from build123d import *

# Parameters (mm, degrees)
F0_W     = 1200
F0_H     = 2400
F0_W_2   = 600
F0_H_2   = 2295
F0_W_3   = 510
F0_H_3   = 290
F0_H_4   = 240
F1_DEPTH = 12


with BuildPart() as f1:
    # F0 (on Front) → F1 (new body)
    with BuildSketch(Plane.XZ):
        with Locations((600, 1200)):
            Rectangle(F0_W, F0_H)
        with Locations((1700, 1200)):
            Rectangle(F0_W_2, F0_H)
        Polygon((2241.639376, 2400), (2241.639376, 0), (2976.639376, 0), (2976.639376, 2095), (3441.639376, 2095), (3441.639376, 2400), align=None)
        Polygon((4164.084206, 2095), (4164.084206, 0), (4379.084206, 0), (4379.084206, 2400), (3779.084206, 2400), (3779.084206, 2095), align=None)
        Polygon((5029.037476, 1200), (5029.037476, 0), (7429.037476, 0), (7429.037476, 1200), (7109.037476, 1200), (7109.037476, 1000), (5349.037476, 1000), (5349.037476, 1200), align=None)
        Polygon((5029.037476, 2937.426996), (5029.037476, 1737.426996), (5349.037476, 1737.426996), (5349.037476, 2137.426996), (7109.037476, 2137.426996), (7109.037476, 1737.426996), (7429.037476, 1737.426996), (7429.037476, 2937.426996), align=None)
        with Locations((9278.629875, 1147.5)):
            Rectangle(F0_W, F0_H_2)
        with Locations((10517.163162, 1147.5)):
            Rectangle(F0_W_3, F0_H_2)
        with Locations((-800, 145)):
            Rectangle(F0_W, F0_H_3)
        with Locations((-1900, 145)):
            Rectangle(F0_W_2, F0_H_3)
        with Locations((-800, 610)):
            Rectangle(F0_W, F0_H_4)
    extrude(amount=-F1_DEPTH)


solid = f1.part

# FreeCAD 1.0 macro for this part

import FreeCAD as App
import Part
import Sketcher
Q = App.Units.Quantity

doc = App.newDocument("Part")
body = doc.addObject("PartDesign::Body", "Body")
body.AllowCompound = True

# Sketch on XZ plane
sketch1 = body.newObject("Sketcher::SketchObject", "Sketch")
sketch1.AttachmentSupport = (doc.getObject("XZ_Plane"), [""])
sketch1.MapMode = "FlatFace"
sketch1.addGeometry(Part.LineSegment(App.Vector(0, 2400, 0), App.Vector(0, 0, 0)), False)
sketch1.addGeometry(Part.LineSegment(App.Vector(0, 0, 0), App.Vector(1200, 0, 0)), False)
sketch1.addGeometry(Part.LineSegment(App.Vector(1200, 0, 0), App.Vector(1200, 2400, 0)), False)
sketch1.addGeometry(Part.LineSegment(App.Vector(1200, 2400, 0), App.Vector(0, 2400, 0)), False)
sketch1.addGeometry(Part.LineSegment(App.Vector(1400, 2400, 0), App.Vector(1400, 0, 0)), False)
sketch1.addGeometry(Part.LineSegment(App.Vector(1400, 0, 0), App.Vector(2000, 0, 0)), False)
sketch1.addGeometry(Part.LineSegment(App.Vector(2000, 0, 0), App.Vector(2000, 2400, 0)), False)
sketch1.addGeometry(Part.LineSegment(App.Vector(2000, 2400, 0), App.Vector(1400, 2400, 0)), False)
sketch1.addGeometry(Part.LineSegment(App.Vector(2241.639376, 2400, 0), App.Vector(2241.639376, 0, 0)), False)
sketch1.addGeometry(Part.LineSegment(App.Vector(2241.639376, 0, 0), App.Vector(2976.639376, 0, 0)), False)
sketch1.addGeometry(Part.LineSegment(App.Vector(2976.639376, 0, 0), App.Vector(2976.639376, 2095, 0)), False)
sketch1.addGeometry(Part.LineSegment(App.Vector(2976.639376, 2095, 0), App.Vector(3441.639376, 2095, 0)), False)
sketch1.addGeometry(Part.LineSegment(App.Vector(3441.639376, 2095, 0), App.Vector(3441.639376, 2400, 0)), False)
sketch1.addGeometry(Part.LineSegment(App.Vector(3441.639376, 2400, 0), App.Vector(2241.639376, 2400, 0)), False)
sketch1.addGeometry(Part.LineSegment(App.Vector(4164.084206, 2095, 0), App.Vector(4164.084206, 0, 0)), False)
sketch1.addGeometry(Part.LineSegment(App.Vector(4164.084206, 0, 0), App.Vector(4379.084206, 0, 0)), False)
sketch1.addGeometry(Part.LineSegment(App.Vector(4379.084206, 0, 0), App.Vector(4379.084206, 2400, 0)), False)
sketch1.addGeometry(Part.LineSegment(App.Vector(4379.084206, 2400, 0), App.Vector(3779.084206, 2400, 0)), False)
sketch1.addGeometry(Part.LineSegment(App.Vector(3779.084206, 2400, 0), App.Vector(3779.084206, 2095, 0)), False)
sketch1.addGeometry(Part.LineSegment(App.Vector(3779.084206, 2095, 0), App.Vector(4164.084206, 2095, 0)), False)
sketch1.addGeometry(Part.LineSegment(App.Vector(5029.037476, 1200, 0), App.Vector(5029.037476, 0, 0)), False)
sketch1.addGeometry(Part.LineSegment(App.Vector(5029.037476, 0, 0), App.Vector(7429.037476, 0, 0)), False)
sketch1.addGeometry(Part.LineSegment(App.Vector(7429.037476, 0, 0), App.Vector(7429.037476, 1200, 0)), False)
sketch1.addGeometry(Part.LineSegment(App.Vector(7429.037476, 1200, 0), App.Vector(7109.037476, 1200, 0)), False)
sketch1.addGeometry(Part.LineSegment(App.Vector(7109.037476, 1200, 0), App.Vector(7109.037476, 1000, 0)), False)
sketch1.addGeometry(Part.LineSegment(App.Vector(7109.037476, 1000, 0), App.Vector(5349.037476, 1000, 0)), False)
sketch1.addGeometry(Part.LineSegment(App.Vector(5349.037476, 1000, 0), App.Vector(5349.037476, 1200, 0)), False)
sketch1.addGeometry(Part.LineSegment(App.Vector(5349.037476, 1200, 0), App.Vector(5029.037476, 1200, 0)), False)
sketch1.addGeometry(Part.LineSegment(App.Vector(5029.037476, 2937.426996, 0), App.Vector(5029.037476, 1737.426996, 0)), False)
sketch1.addGeometry(Part.LineSegment(App.Vector(5029.037476, 1737.426996, 0), App.Vector(5349.037476, 1737.426996, 0)), False)
sketch1.addGeometry(Part.LineSegment(App.Vector(5349.037476, 1737.426996, 0), App.Vector(5349.037476, 2137.426996, 0)), False)
sketch1.addGeometry(Part.LineSegment(App.Vector(5349.037476, 2137.426996, 0), App.Vector(7109.037476, 2137.426996, 0)), False)
sketch1.addGeometry(Part.LineSegment(App.Vector(7109.037476, 2137.426996, 0), App.Vector(7109.037476, 1737.426996, 0)), False)
sketch1.addGeometry(Part.LineSegment(App.Vector(7109.037476, 1737.426996, 0), App.Vector(7429.037476, 1737.426996, 0)), False)
sketch1.addGeometry(Part.LineSegment(App.Vector(7429.037476, 1737.426996, 0), App.Vector(7429.037476, 2937.426996, 0)), False)
sketch1.addGeometry(Part.LineSegment(App.Vector(7429.037476, 2937.426996, 0), App.Vector(5029.037476, 2937.426996, 0)), False)
sketch1.addGeometry(Part.LineSegment(App.Vector(8678.629875, 2295, 0), App.Vector(8678.629875, 0, 0)), False)
sketch1.addGeometry(Part.LineSegment(App.Vector(8678.629875, 0, 0), App.Vector(9878.629875, 0, 0)), False)
sketch1.addGeometry(Part.LineSegment(App.Vector(9878.629875, 0, 0), App.Vector(9878.629875, 2295, 0)), False)
sketch1.addGeometry(Part.LineSegment(App.Vector(9878.629875, 2295, 0), App.Vector(8678.629875, 2295, 0)), False)
sketch1.addGeometry(Part.LineSegment(App.Vector(10262.163162, 2295, 0), App.Vector(10262.163162, 0, 0)), False)
sketch1.addGeometry(Part.LineSegment(App.Vector(10262.163162, 0, 0), App.Vector(10772.163162, 0, 0)), False)
sketch1.addGeometry(Part.LineSegment(App.Vector(10772.163162, 0, 0), App.Vector(10772.163162, 2295, 0)), False)
sketch1.addGeometry(Part.LineSegment(App.Vector(10772.163162, 2295, 0), App.Vector(10262.163162, 2295, 0)), False)
sketch1.addGeometry(Part.LineSegment(App.Vector(-1400, 290, 0), App.Vector(-1400, 0, 0)), False)
sketch1.addGeometry(Part.LineSegment(App.Vector(-1400, 0, 0), App.Vector(-200, 0, 0)), False)
sketch1.addGeometry(Part.LineSegment(App.Vector(-200, 0, 0), App.Vector(-200, 290, 0)), False)
sketch1.addGeometry(Part.LineSegment(App.Vector(-200, 290, 0), App.Vector(-1400, 290, 0)), False)
sketch1.addGeometry(Part.LineSegment(App.Vector(-2200, 290, 0), App.Vector(-2200, 0, 0)), False)
sketch1.addGeometry(Part.LineSegment(App.Vector(-2200, 0, 0), App.Vector(-1600, 0, 0)), False)
sketch1.addGeometry(Part.LineSegment(App.Vector(-1600, 0, 0), App.Vector(-1600, 290, 0)), False)
sketch1.addGeometry(Part.LineSegment(App.Vector(-1600, 290, 0), App.Vector(-2200, 290, 0)), False)
sketch1.addGeometry(Part.LineSegment(App.Vector(-1400, 730, 0), App.Vector(-1400, 490, 0)), False)
sketch1.addGeometry(Part.LineSegment(App.Vector(-1400, 490, 0), App.Vector(-200, 490, 0)), False)
sketch1.addGeometry(Part.LineSegment(App.Vector(-200, 490, 0), App.Vector(-200, 730, 0)), False)
sketch1.addGeometry(Part.LineSegment(App.Vector(-200, 730, 0), App.Vector(-1400, 730, 0)), False)
sketch1.addConstraint(Sketcher.Constraint("Coincident", 0, 2, 1, 1))
sketch1.addConstraint(Sketcher.Constraint("Coincident", 1, 2, 2, 1))
sketch1.addConstraint(Sketcher.Constraint("Coincident", 2, 2, 3, 1))
sketch1.addConstraint(Sketcher.Constraint("Coincident", 3, 2, 0, 1))
sketch1.addConstraint(Sketcher.Constraint("Coincident", 4, 2, 5, 1))
sketch1.addConstraint(Sketcher.Constraint("Coincident", 5, 2, 6, 1))
sketch1.addConstraint(Sketcher.Constraint("Coincident", 6, 2, 7, 1))
sketch1.addConstraint(Sketcher.Constraint("Coincident", 7, 2, 4, 1))
sketch1.addConstraint(Sketcher.Constraint("Coincident", 8, 2, 9, 1))
sketch1.addConstraint(Sketcher.Constraint("Coincident", 9, 2, 10, 1))
sketch1.addConstraint(Sketcher.Constraint("Coincident", 10, 2, 11, 1))
sketch1.addConstraint(Sketcher.Constraint("Coincident", 11, 2, 12, 1))
sketch1.addConstraint(Sketcher.Constraint("Coincident", 12, 2, 13, 1))
sketch1.addConstraint(Sketcher.Constraint("Coincident", 13, 2, 8, 1))
sketch1.addConstraint(Sketcher.Constraint("Coincident", 14, 2, 15, 1))
sketch1.addConstraint(Sketcher.Constraint("Coincident", 15, 2, 16, 1))
sketch1.addConstraint(Sketcher.Constraint("Coincident", 16, 2, 17, 1))
sketch1.addConstraint(Sketcher.Constraint("Coincident", 17, 2, 18, 1))
sketch1.addConstraint(Sketcher.Constraint("Coincident", 18, 2, 19, 1))
sketch1.addConstraint(Sketcher.Constraint("Coincident", 19, 2, 14, 1))
sketch1.addConstraint(Sketcher.Constraint("Coincident", 20, 2, 21, 1))
sketch1.addConstraint(Sketcher.Constraint("Coincident", 21, 2, 22, 1))
sketch1.addConstraint(Sketcher.Constraint("Coincident", 22, 2, 23, 1))
sketch1.addConstraint(Sketcher.Constraint("Coincident", 23, 2, 24, 1))
sketch1.addConstraint(Sketcher.Constraint("Coincident", 24, 2, 25, 1))
sketch1.addConstraint(Sketcher.Constraint("Coincident", 25, 2, 26, 1))
sketch1.addConstraint(Sketcher.Constraint("Coincident", 26, 2, 27, 1))
sketch1.addConstraint(Sketcher.Constraint("Coincident", 27, 2, 20, 1))
sketch1.addConstraint(Sketcher.Constraint("Coincident", 28, 2, 29, 1))
sketch1.addConstraint(Sketcher.Constraint("Coincident", 29, 2, 30, 1))
sketch1.addConstraint(Sketcher.Constraint("Coincident", 30, 2, 31, 1))
sketch1.addConstraint(Sketcher.Constraint("Coincident", 31, 2, 32, 1))
sketch1.addConstraint(Sketcher.Constraint("Coincident", 32, 2, 33, 1))
sketch1.addConstraint(Sketcher.Constraint("Coincident", 33, 2, 34, 1))
sketch1.addConstraint(Sketcher.Constraint("Coincident", 34, 2, 35, 1))
sketch1.addConstraint(Sketcher.Constraint("Coincident", 35, 2, 28, 1))
sketch1.addConstraint(Sketcher.Constraint("Coincident", 36, 2, 37, 1))
sketch1.addConstraint(Sketcher.Constraint("Coincident", 37, 2, 38, 1))
sketch1.addConstraint(Sketcher.Constraint("Coincident", 38, 2, 39, 1))
sketch1.addConstraint(Sketcher.Constraint("Coincident", 39, 2, 36, 1))
sketch1.addConstraint(Sketcher.Constraint("Coincident", 40, 2, 41, 1))
sketch1.addConstraint(Sketcher.Constraint("Coincident", 41, 2, 42, 1))
sketch1.addConstraint(Sketcher.Constraint("Coincident", 42, 2, 43, 1))
sketch1.addConstraint(Sketcher.Constraint("Coincident", 43, 2, 40, 1))
sketch1.addConstraint(Sketcher.Constraint("Coincident", 44, 2, 45, 1))
sketch1.addConstraint(Sketcher.Constraint("Coincident", 45, 2, 46, 1))
sketch1.addConstraint(Sketcher.Constraint("Coincident", 46, 2, 47, 1))
sketch1.addConstraint(Sketcher.Constraint("Coincident", 47, 2, 44, 1))
sketch1.addConstraint(Sketcher.Constraint("Coincident", 48, 2, 49, 1))
sketch1.addConstraint(Sketcher.Constraint("Coincident", 49, 2, 50, 1))
sketch1.addConstraint(Sketcher.Constraint("Coincident", 50, 2, 51, 1))
sketch1.addConstraint(Sketcher.Constraint("Coincident", 51, 2, 48, 1))
sketch1.addConstraint(Sketcher.Constraint("Coincident", 52, 2, 53, 1))
sketch1.addConstraint(Sketcher.Constraint("Coincident", 53, 2, 54, 1))
sketch1.addConstraint(Sketcher.Constraint("Coincident", 54, 2, 55, 1))
sketch1.addConstraint(Sketcher.Constraint("Coincident", 55, 2, 52, 1))
sketch1.addConstraint(Sketcher.Constraint("Vertical", 0))
sketch1.addConstraint(Sketcher.Constraint("Horizontal", 1))
sketch1.addConstraint(Sketcher.Constraint("Vertical", 2))
sketch1.addConstraint(Sketcher.Constraint("Horizontal", 3))
sketch1.addConstraint(Sketcher.Constraint("Vertical", 4))
sketch1.addConstraint(Sketcher.Constraint("Horizontal", 5))
sketch1.addConstraint(Sketcher.Constraint("Vertical", 6))
sketch1.addConstraint(Sketcher.Constraint("Horizontal", 7))
sketch1.addConstraint(Sketcher.Constraint("Vertical", 8))
sketch1.addConstraint(Sketcher.Constraint("Horizontal", 9))
sketch1.addConstraint(Sketcher.Constraint("Vertical", 10))
sketch1.addConstraint(Sketcher.Constraint("Horizontal", 11))
sketch1.addConstraint(Sketcher.Constraint("Vertical", 12))
sketch1.addConstraint(Sketcher.Constraint("Horizontal", 13))
sketch1.addConstraint(Sketcher.Constraint("Vertical", 14))
sketch1.addConstraint(Sketcher.Constraint("Horizontal", 15))
sketch1.addConstraint(Sketcher.Constraint("Vertical", 16))
sketch1.addConstraint(Sketcher.Constraint("Horizontal", 17))
sketch1.addConstraint(Sketcher.Constraint("Vertical", 18))
sketch1.addConstraint(Sketcher.Constraint("Horizontal", 19))
sketch1.addConstraint(Sketcher.Constraint("Vertical", 20))
sketch1.addConstraint(Sketcher.Constraint("Horizontal", 21))
sketch1.addConstraint(Sketcher.Constraint("Vertical", 22))
sketch1.addConstraint(Sketcher.Constraint("Horizontal", 23))
sketch1.addConstraint(Sketcher.Constraint("Vertical", 24))
sketch1.addConstraint(Sketcher.Constraint("Horizontal", 25))
sketch1.addConstraint(Sketcher.Constraint("Vertical", 26))
sketch1.addConstraint(Sketcher.Constraint("Horizontal", 27))
sketch1.addConstraint(Sketcher.Constraint("Vertical", 28))
sketch1.addConstraint(Sketcher.Constraint("Horizontal", 29))
sketch1.addConstraint(Sketcher.Constraint("Vertical", 30))
sketch1.addConstraint(Sketcher.Constraint("Horizontal", 31))
sketch1.addConstraint(Sketcher.Constraint("Vertical", 32))
sketch1.addConstraint(Sketcher.Constraint("Horizontal", 33))
sketch1.addConstraint(Sketcher.Constraint("Vertical", 34))
sketch1.addConstraint(Sketcher.Constraint("Horizontal", 35))
sketch1.addConstraint(Sketcher.Constraint("Vertical", 36))
sketch1.addConstraint(Sketcher.Constraint("Horizontal", 37))
sketch1.addConstraint(Sketcher.Constraint("Vertical", 38))
sketch1.addConstraint(Sketcher.Constraint("Horizontal", 39))
sketch1.addConstraint(Sketcher.Constraint("Vertical", 40))
sketch1.addConstraint(Sketcher.Constraint("Horizontal", 41))
sketch1.addConstraint(Sketcher.Constraint("Vertical", 42))
sketch1.addConstraint(Sketcher.Constraint("Horizontal", 43))
sketch1.addConstraint(Sketcher.Constraint("Vertical", 44))
sketch1.addConstraint(Sketcher.Constraint("Horizontal", 45))
sketch1.addConstraint(Sketcher.Constraint("Vertical", 46))
sketch1.addConstraint(Sketcher.Constraint("Horizontal", 47))
sketch1.addConstraint(Sketcher.Constraint("Vertical", 48))
sketch1.addConstraint(Sketcher.Constraint("Horizontal", 49))
sketch1.addConstraint(Sketcher.Constraint("Vertical", 50))
sketch1.addConstraint(Sketcher.Constraint("Horizontal", 51))
sketch1.addConstraint(Sketcher.Constraint("Vertical", 52))
sketch1.addConstraint(Sketcher.Constraint("Horizontal", 53))
sketch1.addConstraint(Sketcher.Constraint("Vertical", 54))
sketch1.addConstraint(Sketcher.Constraint("Horizontal", 55))
sketch1.addConstraint(Sketcher.Constraint("Coincident", 0, 2, -1, 1))
sketch1.addConstraint(Sketcher.Constraint("Symmetric", 4, 2, 44, 2, -1, 1))
sketch1.addConstraint(Sketcher.Constraint("PointOnObject", 4, 2, -1))
sketch1.addConstraint(Sketcher.Constraint("PointOnObject", 8, 2, -1))
sketch1.addConstraint(Sketcher.Constraint("PointOnObject", 14, 2, -1))
sketch1.addConstraint(Sketcher.Constraint("PointOnObject", 20, 2, -1))
sketch1.addConstraint(Sketcher.Constraint("PointOnObject", 36, 2, -1))
sketch1.addConstraint(Sketcher.Constraint("PointOnObject", 40, 2, -1))
sketch1.addConstraint(Sketcher.Constraint("PointOnObject", 48, 2, -1))
sketch1.addConstraint(Sketcher.Constraint("Horizontal", 3, 2, 6, 2))
sketch1.addConstraint(Sketcher.Constraint("Horizontal", 7, 2, 12, 2))
sketch1.addConstraint(Sketcher.Constraint("Horizontal", 13, 2, 16, 2))
sketch1.addConstraint(Sketcher.Constraint("Horizontal", 11, 2, 18, 2))
sketch1.addConstraint(Sketcher.Constraint("Horizontal", 23, 2, 26, 2))
sketch1.addConstraint(Sketcher.Constraint("Horizontal", 29, 2, 32, 2))
sketch1.addConstraint(Sketcher.Constraint("Horizontal", 39, 2, 42, 2))
sketch1.addConstraint(Sketcher.Constraint("Horizontal", 47, 2, 50, 2))
sketch1.addConstraint(Sketcher.Constraint("Vertical", 27, 2, 28, 2))
sketch1.addConstraint(Sketcher.Constraint("Vertical", 26, 2, 29, 2))
sketch1.addConstraint(Sketcher.Constraint("Vertical", 24, 2, 31, 2))
sketch1.addConstraint(Sketcher.Constraint("Vertical", 22, 2, 33, 2))
sketch1.addConstraint(Sketcher.Constraint("Vertical", 47, 2, 52, 2))
sketch1.addConstraint(Sketcher.Constraint("Vertical", 46, 2, 53, 2))
sketch1.addConstraint(Sketcher.Constraint("Equal", 3, 13))
sketch1.addConstraint(Sketcher.Constraint("Equal", 7, 17))
sketch1.addConstraint(Sketcher.Constraint("Equal", 23, 27))
sketch1.addConstraint(Sketcher.Constraint("Equal", 13, 37))
sketch1.addConstraint(Sketcher.Constraint("Equal", 39, 45))
sketch1.addConstraint(Sketcher.Constraint("Equal", 17, 49))
sketch1.addConstraint(Sketcher.Constraint("Equal", 35, 0))
sketch1.addConstraint(Sketcher.Constraint("Equal", 55, 20))
sketch1.addConstraint(Sketcher.Constraint("Equal", 22, 28))
sketch1.addConstraint(Sketcher.Constraint("DistanceX", 1, 1, 1, 2, Q("1200 mm")))
sketch1.addConstraint(Sketcher.Constraint("DistanceX", 5, 1, 5, 2, Q("600 mm")))
sketch1.addConstraint(Sketcher.Constraint("DistanceX", 9, 1, 9, 2, Q("735 mm")))
sketch1.addConstraint(Sketcher.Constraint("DistanceX", 15, 1, 15, 2, Q("215 mm")))
sketch1.addConstraint(Sketcher.Constraint("DistanceX", 21, 1, 21, 2, Q("2400 mm")))
sketch1.addConstraint(Sketcher.Constraint("DistanceX", 23, 2, 23, 1, Q("320 mm")))
sketch1.addConstraint(Sketcher.Constraint("DistanceX", 41, 1, 41, 2, Q("510 mm")))
sketch1.addConstraint(Sketcher.Constraint("DistanceY", 10, 1, 10, 2, Q("2095 mm")))
sketch1.addConstraint(Sketcher.Constraint("DistanceY", 24, 2, 24, 1, Q("200 mm")))
sketch1.addConstraint(Sketcher.Constraint("DistanceY", 30, 1, 30, 2, Q("400 mm")))
sketch1.addConstraint(Sketcher.Constraint("DistanceY", 36, 2, 36, 1, Q("2295 mm")))
sketch1.addConstraint(Sketcher.Constraint("DistanceY", 44, 2, 44, 1, Q("290 mm")))
sketch1.addConstraint(Sketcher.Constraint("DistanceY", 52, 2, 52, 1, Q("240 mm")))
sketch1.addConstraint(Sketcher.Constraint("DistanceX", -1, 1, 4, 2, Q("1400 mm")))
sketch1.addConstraint(Sketcher.Constraint("DistanceX", 48, 2, -1, 1, Q("2200 mm")))
sketch1.addConstraint(Sketcher.Constraint("DistanceY", -1, 1, 52, 2, Q("490 mm")))
sketch1.addConstraint(Sketcher.Constraint("DistanceX", 9, 2, 20, 2, Q("2052.3981 mm")))
sketch1.addConstraint(Sketcher.Constraint("DistanceX", 21, 2, 36, 2, Q("1249.592399 mm")))
sketch1.addConstraint(Sketcher.Constraint("DistanceX", 9, 2, 14, 2, Q("1187.44483 mm")))
sketch1.addConstraint(Sketcher.Constraint("DistanceX", -1, 1, 8, 2, Q("2241.639376 mm")))
sketch1.addConstraint(Sketcher.Constraint("DistanceY", -1, 1, 28, 2, Q("1737.426996 mm")))
sketch1.addConstraint(Sketcher.Constraint("DistanceX", -1, 1, 40, 2, Q("10262.163162 mm")))
pad1 = body.newObject("PartDesign::Pad", "Pad")
pad1.Profile = sketch1
pad1.Length = 12
pad1.Reversed = True

doc.recompute()
